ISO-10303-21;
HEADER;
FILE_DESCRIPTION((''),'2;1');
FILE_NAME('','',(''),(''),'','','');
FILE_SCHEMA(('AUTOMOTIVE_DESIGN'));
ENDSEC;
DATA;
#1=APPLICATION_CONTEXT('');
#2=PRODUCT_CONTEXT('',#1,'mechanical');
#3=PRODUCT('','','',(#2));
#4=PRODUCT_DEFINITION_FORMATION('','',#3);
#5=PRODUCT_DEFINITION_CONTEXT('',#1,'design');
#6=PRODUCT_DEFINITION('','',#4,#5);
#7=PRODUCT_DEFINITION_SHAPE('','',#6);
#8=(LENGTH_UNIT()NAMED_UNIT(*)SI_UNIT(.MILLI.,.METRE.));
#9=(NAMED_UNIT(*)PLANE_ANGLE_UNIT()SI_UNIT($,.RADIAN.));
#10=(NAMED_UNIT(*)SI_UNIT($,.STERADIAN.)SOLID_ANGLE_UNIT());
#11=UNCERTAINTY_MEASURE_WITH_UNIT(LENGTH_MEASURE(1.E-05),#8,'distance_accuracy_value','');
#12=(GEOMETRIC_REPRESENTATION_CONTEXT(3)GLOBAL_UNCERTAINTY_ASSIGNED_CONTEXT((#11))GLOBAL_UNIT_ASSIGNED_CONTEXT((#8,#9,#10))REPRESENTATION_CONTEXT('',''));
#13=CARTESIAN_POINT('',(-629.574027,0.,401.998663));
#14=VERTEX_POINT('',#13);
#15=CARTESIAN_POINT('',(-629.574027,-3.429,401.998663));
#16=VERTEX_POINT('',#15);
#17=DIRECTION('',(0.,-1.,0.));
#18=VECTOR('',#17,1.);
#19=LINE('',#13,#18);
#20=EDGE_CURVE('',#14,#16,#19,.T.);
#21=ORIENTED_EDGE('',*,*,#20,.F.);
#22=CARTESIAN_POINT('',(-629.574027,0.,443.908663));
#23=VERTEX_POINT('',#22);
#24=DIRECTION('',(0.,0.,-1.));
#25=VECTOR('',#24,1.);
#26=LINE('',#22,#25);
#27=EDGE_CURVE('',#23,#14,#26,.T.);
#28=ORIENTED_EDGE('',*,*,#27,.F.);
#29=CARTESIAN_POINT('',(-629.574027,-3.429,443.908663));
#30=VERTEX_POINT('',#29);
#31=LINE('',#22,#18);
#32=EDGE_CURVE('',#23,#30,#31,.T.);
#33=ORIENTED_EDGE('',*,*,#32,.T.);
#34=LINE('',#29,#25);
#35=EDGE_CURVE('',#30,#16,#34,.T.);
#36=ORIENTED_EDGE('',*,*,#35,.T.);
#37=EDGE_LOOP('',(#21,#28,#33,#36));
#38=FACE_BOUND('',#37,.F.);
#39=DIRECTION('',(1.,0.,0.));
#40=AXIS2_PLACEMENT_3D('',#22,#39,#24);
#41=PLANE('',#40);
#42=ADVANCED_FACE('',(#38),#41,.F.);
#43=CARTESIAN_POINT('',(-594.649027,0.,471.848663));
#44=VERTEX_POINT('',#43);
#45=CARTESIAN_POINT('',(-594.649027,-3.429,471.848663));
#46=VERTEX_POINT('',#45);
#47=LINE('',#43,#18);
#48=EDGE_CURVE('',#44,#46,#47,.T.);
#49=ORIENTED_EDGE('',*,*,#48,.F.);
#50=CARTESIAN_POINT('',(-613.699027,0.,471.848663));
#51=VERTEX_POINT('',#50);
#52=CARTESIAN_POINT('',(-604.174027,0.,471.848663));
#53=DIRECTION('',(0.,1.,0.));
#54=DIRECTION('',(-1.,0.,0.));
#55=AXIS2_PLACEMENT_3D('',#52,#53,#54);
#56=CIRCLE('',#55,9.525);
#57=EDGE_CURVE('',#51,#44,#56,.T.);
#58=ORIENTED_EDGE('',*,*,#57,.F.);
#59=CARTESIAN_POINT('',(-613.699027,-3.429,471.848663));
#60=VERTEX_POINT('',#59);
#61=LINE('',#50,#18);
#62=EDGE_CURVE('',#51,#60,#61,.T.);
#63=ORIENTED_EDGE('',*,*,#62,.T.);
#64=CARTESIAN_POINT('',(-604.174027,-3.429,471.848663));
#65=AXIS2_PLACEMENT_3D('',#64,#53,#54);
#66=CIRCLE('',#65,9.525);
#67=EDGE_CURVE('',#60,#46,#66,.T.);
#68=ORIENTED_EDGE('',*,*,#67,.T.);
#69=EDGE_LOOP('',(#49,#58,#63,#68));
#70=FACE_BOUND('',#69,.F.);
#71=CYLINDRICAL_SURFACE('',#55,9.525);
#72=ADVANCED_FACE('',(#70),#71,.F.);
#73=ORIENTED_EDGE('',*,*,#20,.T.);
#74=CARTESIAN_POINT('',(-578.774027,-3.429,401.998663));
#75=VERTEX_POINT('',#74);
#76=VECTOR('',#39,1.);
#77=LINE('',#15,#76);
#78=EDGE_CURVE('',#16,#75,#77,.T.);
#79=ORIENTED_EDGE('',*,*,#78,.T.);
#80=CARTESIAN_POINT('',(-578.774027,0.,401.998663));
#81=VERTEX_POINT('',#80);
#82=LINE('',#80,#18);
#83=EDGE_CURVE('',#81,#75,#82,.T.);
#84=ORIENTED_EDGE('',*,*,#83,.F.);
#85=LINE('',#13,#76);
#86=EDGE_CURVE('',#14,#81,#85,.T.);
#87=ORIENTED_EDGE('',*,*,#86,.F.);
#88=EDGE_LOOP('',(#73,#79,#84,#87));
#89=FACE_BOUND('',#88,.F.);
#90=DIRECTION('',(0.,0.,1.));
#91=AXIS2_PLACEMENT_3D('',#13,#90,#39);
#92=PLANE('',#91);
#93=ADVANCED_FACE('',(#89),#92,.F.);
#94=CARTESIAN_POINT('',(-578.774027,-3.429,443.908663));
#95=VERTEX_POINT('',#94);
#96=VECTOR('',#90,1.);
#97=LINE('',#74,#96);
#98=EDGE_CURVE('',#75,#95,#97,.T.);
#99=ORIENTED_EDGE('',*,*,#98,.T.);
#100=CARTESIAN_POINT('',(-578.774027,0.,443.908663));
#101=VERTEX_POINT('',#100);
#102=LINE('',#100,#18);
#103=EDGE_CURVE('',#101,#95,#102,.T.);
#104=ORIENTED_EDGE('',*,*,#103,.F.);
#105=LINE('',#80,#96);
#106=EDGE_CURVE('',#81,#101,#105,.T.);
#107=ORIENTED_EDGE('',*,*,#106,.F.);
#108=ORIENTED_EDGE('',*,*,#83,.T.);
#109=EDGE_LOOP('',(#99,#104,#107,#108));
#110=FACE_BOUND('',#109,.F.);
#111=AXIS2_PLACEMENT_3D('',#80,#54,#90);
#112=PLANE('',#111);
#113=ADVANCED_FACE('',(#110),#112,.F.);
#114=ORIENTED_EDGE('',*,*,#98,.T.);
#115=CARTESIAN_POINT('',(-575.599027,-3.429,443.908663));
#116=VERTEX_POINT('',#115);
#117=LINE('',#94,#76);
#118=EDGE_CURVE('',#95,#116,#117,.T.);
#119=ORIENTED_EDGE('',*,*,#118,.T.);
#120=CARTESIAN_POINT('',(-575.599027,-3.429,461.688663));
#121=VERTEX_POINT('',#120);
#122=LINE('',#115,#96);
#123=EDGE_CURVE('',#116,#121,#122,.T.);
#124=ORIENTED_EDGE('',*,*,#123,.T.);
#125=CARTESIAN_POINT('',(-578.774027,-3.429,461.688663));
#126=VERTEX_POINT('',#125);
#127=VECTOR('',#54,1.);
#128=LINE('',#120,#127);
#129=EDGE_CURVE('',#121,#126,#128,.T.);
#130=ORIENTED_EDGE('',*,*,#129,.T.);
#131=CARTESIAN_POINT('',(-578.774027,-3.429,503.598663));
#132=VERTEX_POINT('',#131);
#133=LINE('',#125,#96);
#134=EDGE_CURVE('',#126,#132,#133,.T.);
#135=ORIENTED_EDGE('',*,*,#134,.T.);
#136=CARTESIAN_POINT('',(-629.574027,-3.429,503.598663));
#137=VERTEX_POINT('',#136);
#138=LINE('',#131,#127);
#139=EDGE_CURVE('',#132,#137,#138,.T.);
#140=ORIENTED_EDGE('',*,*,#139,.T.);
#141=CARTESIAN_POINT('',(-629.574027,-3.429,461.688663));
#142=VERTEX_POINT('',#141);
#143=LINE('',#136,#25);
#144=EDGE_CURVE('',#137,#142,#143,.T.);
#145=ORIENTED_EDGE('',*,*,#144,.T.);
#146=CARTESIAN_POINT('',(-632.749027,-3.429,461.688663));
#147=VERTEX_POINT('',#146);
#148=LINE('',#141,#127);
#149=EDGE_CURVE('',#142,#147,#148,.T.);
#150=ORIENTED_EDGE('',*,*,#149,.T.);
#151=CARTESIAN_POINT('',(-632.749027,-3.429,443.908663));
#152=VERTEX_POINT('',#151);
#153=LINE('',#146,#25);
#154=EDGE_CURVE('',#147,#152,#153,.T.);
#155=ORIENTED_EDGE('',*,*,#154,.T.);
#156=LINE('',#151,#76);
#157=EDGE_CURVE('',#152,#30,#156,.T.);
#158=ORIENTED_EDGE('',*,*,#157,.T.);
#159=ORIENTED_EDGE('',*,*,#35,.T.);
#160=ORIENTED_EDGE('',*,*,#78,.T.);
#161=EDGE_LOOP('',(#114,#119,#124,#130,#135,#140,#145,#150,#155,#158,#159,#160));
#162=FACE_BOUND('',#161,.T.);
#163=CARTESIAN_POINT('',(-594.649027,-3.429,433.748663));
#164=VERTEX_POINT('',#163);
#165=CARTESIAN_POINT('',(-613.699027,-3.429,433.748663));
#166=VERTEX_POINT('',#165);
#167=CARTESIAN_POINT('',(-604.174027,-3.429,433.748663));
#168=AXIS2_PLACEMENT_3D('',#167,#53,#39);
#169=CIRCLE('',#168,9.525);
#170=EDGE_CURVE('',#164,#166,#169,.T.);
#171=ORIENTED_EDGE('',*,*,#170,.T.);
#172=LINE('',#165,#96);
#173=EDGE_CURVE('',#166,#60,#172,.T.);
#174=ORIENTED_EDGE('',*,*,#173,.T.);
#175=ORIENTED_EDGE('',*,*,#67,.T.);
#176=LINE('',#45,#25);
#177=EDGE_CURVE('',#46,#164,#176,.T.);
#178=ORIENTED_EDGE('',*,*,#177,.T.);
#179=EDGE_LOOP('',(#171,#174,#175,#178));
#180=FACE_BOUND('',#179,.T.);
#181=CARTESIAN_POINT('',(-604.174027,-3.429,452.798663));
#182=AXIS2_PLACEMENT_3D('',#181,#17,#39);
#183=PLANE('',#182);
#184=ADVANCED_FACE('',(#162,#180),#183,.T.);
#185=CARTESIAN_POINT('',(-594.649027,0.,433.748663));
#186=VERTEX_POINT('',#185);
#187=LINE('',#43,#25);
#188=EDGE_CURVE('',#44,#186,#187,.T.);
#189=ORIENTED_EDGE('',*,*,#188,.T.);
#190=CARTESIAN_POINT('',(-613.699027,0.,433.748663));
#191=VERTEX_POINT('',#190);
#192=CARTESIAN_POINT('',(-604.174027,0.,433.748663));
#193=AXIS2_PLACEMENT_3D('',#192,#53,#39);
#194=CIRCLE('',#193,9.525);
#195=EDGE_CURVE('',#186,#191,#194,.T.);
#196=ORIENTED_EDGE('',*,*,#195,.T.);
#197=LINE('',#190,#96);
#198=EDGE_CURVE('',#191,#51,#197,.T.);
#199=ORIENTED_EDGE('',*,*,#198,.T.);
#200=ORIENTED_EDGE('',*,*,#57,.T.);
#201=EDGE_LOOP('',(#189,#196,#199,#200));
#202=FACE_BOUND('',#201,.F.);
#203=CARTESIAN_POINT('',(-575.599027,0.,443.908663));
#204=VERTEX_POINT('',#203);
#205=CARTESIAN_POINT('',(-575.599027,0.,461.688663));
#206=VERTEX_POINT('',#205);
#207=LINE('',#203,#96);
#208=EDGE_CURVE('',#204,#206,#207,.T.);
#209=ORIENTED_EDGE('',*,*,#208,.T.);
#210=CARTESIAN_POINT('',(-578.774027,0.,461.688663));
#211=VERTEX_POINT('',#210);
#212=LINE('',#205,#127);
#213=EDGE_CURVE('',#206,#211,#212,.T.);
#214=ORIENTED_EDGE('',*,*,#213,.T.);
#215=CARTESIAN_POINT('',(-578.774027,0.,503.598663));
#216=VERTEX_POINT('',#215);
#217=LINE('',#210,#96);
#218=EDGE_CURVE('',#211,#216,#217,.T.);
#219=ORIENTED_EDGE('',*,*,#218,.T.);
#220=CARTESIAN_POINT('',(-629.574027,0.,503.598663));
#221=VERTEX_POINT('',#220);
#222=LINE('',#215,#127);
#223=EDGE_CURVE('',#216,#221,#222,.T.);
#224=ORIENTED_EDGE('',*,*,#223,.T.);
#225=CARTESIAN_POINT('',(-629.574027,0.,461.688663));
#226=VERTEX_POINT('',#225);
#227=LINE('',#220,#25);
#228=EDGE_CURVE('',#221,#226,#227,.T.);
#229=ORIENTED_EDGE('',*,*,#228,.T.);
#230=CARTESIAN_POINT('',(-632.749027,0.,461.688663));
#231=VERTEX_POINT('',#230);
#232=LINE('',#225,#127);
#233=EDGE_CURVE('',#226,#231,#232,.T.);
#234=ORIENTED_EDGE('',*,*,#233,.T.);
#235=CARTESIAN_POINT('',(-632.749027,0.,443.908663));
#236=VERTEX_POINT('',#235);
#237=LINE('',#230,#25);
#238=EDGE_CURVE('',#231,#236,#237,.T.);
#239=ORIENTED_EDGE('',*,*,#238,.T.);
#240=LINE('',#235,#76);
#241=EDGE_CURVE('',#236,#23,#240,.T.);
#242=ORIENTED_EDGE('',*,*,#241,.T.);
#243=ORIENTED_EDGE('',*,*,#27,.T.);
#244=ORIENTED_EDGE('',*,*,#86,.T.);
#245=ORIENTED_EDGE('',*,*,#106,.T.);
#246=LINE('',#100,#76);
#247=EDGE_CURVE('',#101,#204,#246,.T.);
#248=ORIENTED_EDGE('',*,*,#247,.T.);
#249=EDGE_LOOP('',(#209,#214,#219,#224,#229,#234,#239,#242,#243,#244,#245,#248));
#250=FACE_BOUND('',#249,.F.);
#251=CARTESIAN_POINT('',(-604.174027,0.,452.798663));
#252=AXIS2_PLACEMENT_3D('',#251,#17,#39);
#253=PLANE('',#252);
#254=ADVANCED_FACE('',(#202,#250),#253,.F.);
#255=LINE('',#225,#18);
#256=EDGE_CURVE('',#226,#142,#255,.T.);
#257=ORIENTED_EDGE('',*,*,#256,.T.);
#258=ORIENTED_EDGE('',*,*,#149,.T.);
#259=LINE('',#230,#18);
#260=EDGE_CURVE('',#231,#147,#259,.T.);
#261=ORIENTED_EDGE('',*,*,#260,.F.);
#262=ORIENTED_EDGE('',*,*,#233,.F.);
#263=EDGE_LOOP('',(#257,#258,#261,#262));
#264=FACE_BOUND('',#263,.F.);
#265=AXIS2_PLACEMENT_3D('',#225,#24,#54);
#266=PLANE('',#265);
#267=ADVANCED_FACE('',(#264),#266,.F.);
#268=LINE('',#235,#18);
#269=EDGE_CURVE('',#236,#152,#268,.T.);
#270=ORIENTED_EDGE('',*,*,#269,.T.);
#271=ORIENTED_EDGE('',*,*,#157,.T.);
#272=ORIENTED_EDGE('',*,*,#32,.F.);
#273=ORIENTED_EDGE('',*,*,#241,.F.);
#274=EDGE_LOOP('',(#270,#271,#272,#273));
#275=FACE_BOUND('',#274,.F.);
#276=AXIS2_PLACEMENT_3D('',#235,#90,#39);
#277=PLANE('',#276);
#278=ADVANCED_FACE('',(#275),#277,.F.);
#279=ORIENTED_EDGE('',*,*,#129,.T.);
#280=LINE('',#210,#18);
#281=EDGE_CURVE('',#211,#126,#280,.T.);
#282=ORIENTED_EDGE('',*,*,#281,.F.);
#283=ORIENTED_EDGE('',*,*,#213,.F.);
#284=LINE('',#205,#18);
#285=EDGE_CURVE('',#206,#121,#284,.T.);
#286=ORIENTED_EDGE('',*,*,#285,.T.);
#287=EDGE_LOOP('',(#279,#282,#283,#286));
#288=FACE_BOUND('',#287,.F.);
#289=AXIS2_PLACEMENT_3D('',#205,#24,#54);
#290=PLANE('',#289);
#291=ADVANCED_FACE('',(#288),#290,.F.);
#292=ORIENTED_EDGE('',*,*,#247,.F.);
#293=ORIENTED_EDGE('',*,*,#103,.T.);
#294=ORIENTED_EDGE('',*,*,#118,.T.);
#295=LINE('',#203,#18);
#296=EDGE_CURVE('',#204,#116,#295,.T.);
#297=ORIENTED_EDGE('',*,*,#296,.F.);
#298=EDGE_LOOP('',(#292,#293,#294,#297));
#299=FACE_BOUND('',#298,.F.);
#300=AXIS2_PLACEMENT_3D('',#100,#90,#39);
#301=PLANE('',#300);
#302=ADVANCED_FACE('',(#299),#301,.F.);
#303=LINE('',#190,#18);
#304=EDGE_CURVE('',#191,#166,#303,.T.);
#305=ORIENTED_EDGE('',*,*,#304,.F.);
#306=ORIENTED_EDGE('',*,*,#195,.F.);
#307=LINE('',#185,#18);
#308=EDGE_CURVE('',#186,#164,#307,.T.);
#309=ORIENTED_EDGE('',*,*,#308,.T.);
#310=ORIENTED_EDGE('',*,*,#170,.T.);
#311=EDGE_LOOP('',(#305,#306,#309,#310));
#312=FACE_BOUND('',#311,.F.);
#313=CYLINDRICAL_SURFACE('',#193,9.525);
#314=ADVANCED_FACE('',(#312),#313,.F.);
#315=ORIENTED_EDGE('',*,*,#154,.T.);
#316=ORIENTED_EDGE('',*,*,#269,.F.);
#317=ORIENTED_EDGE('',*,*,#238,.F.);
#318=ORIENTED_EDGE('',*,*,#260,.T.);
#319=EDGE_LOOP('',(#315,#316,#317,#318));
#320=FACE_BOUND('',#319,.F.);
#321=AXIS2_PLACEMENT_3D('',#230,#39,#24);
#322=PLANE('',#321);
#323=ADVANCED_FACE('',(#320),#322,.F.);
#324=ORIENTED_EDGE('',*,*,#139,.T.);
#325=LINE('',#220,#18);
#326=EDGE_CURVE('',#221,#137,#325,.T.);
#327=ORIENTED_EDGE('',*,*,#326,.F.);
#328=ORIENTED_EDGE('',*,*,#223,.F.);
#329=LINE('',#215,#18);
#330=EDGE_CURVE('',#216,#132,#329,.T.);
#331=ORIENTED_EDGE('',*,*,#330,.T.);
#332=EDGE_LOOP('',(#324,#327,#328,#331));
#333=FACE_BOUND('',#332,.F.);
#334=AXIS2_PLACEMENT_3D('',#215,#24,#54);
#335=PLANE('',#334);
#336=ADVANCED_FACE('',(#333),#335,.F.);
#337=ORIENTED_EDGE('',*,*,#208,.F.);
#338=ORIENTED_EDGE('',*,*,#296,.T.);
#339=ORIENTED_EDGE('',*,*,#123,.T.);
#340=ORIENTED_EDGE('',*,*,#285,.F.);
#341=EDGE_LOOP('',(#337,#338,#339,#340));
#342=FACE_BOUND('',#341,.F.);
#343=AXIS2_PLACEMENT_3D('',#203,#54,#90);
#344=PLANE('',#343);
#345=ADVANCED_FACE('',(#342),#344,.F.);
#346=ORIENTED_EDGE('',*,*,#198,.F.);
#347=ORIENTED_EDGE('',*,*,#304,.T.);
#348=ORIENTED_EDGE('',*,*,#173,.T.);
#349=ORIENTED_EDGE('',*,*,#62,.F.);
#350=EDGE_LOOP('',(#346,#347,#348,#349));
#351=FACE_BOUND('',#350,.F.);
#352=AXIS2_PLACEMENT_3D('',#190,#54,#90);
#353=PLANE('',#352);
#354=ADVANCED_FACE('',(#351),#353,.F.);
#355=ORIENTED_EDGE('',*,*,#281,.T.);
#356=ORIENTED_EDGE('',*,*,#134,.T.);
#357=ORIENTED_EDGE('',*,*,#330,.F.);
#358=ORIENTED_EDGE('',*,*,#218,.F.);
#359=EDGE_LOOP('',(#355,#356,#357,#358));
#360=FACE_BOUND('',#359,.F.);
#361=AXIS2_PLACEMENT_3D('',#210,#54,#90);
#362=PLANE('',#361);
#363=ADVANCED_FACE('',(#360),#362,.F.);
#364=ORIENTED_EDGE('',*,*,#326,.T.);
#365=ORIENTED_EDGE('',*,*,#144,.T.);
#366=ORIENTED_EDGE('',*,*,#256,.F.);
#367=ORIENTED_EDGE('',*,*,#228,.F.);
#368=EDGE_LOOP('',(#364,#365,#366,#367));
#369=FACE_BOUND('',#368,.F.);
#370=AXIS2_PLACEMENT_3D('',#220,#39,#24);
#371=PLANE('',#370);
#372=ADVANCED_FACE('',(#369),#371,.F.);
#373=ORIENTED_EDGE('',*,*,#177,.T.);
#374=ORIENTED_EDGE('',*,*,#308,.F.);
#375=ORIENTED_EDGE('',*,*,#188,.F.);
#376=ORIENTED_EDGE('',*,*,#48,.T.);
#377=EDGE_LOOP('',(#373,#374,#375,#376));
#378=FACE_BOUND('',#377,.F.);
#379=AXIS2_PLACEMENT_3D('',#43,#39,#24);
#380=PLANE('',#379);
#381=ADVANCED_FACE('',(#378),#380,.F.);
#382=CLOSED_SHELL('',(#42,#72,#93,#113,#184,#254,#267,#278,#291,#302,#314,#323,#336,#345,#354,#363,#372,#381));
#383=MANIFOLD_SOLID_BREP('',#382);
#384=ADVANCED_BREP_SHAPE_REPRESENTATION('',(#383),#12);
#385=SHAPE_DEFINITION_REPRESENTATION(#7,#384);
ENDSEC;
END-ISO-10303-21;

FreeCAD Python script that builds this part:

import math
import FreeCAD as App
import Part
import Sketcher

V = App.Vector
Q = App.Units.Quantity

doc = App.newDocument("Part")
body = doc.addObject("PartDesign::Body", "Body")

sketch1 = doc.addObject("Sketcher::SketchObject", "Sketch")
body.addObject(sketch1)
sketch1.AttachmentSupport = (doc.XZ_Plane, [""])
sketch1.MapMode = "FlatFace"
sketch1.addGeometry([
    Part.LineSegment(V(-575.6, 443.9, 0), V(-575.6, 461.7, 0)),
    Part.LineSegment(V(-575.6, 461.7, 0), V(-578.8, 461.7, 0)),
    Part.LineSegment(V(-578.8, 461.7, 0), V(-578.8, 503.6, 0)),
    Part.LineSegment(V(-578.8, 503.6, 0), V(-629.6, 503.6, 0)),
    Part.LineSegment(V(-629.6, 503.6, 0), V(-629.6, 461.7, 0)),
    Part.LineSegment(V(-629.6, 461.7, 0), V(-632.7, 461.7, 0)),
    Part.LineSegment(V(-632.7, 461.7, 0), V(-632.7, 443.9, 0)),
    Part.LineSegment(V(-632.7, 443.9, 0), V(-629.6, 443.9, 0)),
    Part.LineSegment(V(-629.6, 443.9, 0), V(-629.6, 402, 0)),
    Part.LineSegment(V(-629.6, 402, 0), V(-578.8, 402, 0)),
    Part.LineSegment(V(-578.8, 402, 0), V(-578.8, 443.9, 0)),
    Part.LineSegment(V(-578.8, 443.9, 0), V(-575.6, 443.9, 0)),
    Part.ArcOfCircle(Part.Circle(V(-604.2, 471.8, 0), V(0, 0, 1), 9.5), math.radians(0), math.radians(180)),
    Part.LineSegment(V(-594.6, 471.8, 0), V(-594.6, 433.7, 0)),
    Part.ArcOfCircle(Part.Circle(V(-604.2, 433.7, 0), V(0, 0, 1), 9.5), math.radians(180), math.radians(360)),
    Part.LineSegment(V(-613.7, 433.7, 0), V(-613.7, 471.8, 0)),
], False)
sketch1.addConstraint([
    Sketcher.Constraint("Coincident", 0, 2, 1, 1),
    Sketcher.Constraint("Coincident", 1, 2, 2, 1),
    Sketcher.Constraint("Coincident", 2, 2, 3, 1),
    Sketcher.Constraint("Coincident", 3, 2, 4, 1),
    Sketcher.Constraint("Coincident", 4, 2, 5, 1),
    Sketcher.Constraint("Coincident", 5, 2, 6, 1),
    Sketcher.Constraint("Coincident", 6, 2, 7, 1),
    Sketcher.Constraint("Coincident", 7, 2, 8, 1),
    Sketcher.Constraint("Coincident", 8, 2, 9, 1),
    Sketcher.Constraint("Coincident", 9, 2, 10, 1),
    Sketcher.Constraint("Coincident", 10, 2, 11, 1),
    Sketcher.Constraint("Coincident", 11, 2, 0, 1),
    Sketcher.Constraint("Tangent", 12, 1, 13, 1),
    Sketcher.Constraint("Tangent", 13, 2, 14, 2),
    Sketcher.Constraint("Tangent", 14, 1, 15, 1),
    Sketcher.Constraint("Tangent", 15, 2, 12, 2),
    Sketcher.Constraint("Vertical", 0),
    Sketcher.Constraint("Horizontal", 1),
    Sketcher.Constraint("Vertical", 2),
    Sketcher.Constraint("Horizontal", 3),
    Sketcher.Constraint("Vertical", 4),
    Sketcher.Constraint("Horizontal", 5),
    Sketcher.Constraint("Vertical", 6),
    Sketcher.Constraint("Horizontal", 7),
    Sketcher.Constraint("Vertical", 8),
    Sketcher.Constraint("Horizontal", 9),
    Sketcher.Constraint("Vertical", 10),
    Sketcher.Constraint("Horizontal", 11),
    Sketcher.Constraint("Vertical", 13),
    Sketcher.Constraint("Vertical", 15),
    Sketcher.Constraint("Horizontal", 1, 2, 4, 2),
    Sketcher.Constraint("Horizontal", 7, 2, 10, 2),
    Sketcher.Constraint("Vertical", 4, 2, 7, 2),
    Sketcher.Constraint("Vertical", 2, 2, 9, 2),
    Sketcher.Constraint("Equal", 1, 5),
    Sketcher.Constraint("Equal", 4, 8),
    Sketcher.Constraint("DistanceX", 3, 2, 3, 1, Q("2 in")),
    Sketcher.Constraint("DistanceY", 0, 1, 0, 2, Q("0.7 in")),
    Sketcher.Constraint("DistanceY", 13, 2, 13, 1, Q("1.5 in")),
    Sketcher.Constraint("Radius", 12, Q("0.375 in")),
    Sketcher.Constraint("DistanceX", 12, 3, 1, 2, Q("1 in")),
    Sketcher.Constraint("DistanceY", 2, 1, 2, 2, Q("1.65 in")),
    Sketcher.Constraint("DistanceY", 0, 2, 12, 3, Q("0.4 in")),
    Sketcher.Constraint("DistanceX", 1, 2, 1, 1, Q("0.125 in")),
    Sketcher.Constraint("DistanceX", 12, 3, -1, 1, 604.174027),
    Sketcher.Constraint("DistanceY", -1, 1, 12, 3, 471.848663),
])
pad1 = doc.addObject("PartDesign::Pad", "Pad")
body.addObject(pad1)
pad1.Profile = sketch1
pad1.Length = Q("0.135 in")

doc.recompute()
